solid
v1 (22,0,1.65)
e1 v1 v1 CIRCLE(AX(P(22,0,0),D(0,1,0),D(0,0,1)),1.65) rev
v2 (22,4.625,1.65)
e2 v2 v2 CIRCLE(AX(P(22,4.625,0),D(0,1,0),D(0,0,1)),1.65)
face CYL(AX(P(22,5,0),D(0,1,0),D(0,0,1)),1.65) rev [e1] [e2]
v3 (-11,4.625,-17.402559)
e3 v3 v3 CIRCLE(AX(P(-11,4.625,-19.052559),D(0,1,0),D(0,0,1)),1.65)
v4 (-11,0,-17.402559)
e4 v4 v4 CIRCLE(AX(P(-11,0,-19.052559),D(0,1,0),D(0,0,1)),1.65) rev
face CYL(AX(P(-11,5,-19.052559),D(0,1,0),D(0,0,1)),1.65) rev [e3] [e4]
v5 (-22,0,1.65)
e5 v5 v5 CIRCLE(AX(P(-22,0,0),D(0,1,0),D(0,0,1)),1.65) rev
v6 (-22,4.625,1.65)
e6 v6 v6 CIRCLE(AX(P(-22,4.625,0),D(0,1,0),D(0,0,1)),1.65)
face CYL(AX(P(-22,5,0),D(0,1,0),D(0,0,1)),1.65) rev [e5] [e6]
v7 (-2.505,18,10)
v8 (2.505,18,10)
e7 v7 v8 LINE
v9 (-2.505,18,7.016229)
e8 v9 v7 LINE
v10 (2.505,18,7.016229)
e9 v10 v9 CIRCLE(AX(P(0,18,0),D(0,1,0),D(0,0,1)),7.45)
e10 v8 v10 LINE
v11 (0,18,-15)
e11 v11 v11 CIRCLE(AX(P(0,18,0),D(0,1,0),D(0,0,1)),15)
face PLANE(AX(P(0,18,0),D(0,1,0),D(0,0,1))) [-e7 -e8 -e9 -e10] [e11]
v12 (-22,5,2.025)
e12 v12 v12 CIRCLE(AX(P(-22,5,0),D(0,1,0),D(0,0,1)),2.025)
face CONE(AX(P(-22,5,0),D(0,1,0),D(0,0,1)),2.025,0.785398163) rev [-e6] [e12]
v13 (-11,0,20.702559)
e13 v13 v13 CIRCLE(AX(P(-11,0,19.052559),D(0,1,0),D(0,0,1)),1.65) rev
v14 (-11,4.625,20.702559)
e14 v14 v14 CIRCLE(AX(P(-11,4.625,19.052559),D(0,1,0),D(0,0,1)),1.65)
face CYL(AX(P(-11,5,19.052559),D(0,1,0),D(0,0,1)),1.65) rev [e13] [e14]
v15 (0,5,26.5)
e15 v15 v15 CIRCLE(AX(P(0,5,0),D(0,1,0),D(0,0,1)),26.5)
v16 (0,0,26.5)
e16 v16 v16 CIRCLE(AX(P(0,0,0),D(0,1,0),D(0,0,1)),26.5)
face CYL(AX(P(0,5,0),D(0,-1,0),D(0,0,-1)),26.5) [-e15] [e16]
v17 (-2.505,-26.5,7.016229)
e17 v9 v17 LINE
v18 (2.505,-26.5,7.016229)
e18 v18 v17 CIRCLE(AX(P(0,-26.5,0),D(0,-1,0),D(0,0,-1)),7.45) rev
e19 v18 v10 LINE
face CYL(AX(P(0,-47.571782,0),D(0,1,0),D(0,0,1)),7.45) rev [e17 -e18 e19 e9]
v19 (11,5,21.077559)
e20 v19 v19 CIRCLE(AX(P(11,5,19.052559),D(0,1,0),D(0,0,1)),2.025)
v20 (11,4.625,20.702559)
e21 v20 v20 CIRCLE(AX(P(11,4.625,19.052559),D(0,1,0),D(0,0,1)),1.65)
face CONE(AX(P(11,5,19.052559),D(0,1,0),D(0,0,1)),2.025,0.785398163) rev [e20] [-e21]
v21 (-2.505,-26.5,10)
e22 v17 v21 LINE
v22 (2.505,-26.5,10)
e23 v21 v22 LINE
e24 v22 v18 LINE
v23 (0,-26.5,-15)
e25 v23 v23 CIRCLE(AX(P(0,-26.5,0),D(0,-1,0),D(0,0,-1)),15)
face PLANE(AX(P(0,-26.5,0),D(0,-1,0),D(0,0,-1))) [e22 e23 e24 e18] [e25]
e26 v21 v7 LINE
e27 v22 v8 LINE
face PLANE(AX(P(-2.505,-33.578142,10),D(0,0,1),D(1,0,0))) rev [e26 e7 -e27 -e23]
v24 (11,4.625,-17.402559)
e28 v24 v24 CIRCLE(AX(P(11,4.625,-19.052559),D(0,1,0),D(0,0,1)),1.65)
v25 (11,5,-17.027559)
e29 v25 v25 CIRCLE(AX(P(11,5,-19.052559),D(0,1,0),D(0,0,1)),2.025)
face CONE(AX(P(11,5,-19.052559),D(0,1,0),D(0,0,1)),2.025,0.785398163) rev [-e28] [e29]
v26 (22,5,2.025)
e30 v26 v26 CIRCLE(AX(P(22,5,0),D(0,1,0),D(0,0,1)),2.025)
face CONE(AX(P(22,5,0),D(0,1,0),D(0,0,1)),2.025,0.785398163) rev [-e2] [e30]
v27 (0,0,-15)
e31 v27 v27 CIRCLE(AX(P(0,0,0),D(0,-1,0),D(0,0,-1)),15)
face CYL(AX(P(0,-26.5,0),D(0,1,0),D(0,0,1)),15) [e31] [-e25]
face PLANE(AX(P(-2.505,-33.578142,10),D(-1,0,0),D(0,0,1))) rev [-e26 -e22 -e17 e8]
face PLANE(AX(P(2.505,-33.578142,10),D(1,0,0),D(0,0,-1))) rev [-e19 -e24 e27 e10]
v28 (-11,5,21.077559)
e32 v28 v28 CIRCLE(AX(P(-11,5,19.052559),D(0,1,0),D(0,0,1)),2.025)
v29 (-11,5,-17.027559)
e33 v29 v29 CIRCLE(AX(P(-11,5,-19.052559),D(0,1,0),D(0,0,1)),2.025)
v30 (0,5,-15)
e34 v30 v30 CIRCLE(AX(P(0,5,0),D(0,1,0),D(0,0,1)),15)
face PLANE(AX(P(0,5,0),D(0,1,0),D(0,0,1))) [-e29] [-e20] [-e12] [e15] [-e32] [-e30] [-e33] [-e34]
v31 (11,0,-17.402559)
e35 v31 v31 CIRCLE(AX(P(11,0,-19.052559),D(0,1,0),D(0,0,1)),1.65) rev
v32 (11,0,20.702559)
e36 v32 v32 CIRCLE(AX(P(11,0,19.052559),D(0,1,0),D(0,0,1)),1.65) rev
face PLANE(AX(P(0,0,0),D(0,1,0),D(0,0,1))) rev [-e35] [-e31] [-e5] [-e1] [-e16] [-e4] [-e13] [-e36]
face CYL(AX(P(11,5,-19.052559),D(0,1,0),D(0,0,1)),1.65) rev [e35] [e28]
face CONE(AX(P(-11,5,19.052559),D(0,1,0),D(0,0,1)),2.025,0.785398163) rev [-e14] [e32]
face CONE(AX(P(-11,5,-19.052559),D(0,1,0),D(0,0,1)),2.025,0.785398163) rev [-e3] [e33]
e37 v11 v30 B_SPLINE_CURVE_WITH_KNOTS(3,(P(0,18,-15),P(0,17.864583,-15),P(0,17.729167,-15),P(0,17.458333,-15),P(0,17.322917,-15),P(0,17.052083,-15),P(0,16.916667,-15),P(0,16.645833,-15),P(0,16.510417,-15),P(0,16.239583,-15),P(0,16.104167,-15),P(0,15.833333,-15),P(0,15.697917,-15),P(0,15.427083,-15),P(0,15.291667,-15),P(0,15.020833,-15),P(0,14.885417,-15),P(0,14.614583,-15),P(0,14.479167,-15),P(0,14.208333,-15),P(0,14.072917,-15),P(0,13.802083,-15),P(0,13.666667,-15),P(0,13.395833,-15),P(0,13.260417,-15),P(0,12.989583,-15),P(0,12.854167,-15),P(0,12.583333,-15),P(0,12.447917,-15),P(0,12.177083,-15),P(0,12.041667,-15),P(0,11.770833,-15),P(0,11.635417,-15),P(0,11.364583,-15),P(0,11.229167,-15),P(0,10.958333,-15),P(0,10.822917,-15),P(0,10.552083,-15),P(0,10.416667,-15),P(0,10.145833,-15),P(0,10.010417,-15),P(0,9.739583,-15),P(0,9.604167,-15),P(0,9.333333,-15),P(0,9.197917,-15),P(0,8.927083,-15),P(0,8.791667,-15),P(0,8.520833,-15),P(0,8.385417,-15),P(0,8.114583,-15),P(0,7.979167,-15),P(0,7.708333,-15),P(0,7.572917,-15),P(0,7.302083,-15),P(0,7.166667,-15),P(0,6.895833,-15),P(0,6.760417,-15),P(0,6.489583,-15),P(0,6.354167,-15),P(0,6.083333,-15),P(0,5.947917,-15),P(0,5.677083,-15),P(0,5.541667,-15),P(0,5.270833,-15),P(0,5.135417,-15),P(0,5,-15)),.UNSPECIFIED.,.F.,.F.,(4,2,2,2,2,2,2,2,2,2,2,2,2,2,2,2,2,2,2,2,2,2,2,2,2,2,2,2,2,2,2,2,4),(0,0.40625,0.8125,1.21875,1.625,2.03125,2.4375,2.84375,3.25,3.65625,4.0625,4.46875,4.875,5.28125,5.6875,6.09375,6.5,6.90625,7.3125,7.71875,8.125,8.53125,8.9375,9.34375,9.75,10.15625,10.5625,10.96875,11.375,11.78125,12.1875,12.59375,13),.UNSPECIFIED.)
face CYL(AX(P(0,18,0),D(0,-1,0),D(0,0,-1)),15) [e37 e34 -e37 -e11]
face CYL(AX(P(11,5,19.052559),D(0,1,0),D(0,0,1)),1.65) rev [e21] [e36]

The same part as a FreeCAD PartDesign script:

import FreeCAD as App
import Part
import Sketcher
from FreeCAD import Vector


def add_polygon(sketch, points):
    """Adds a closed chain of lines whose ends are joined by coincident constraints."""
    first, n = sketch.GeometryCount, len(points)
    for a, b in zip(points, points[1:] + points[:1]):
        sketch.addGeometry(Part.LineSegment(App.Vector(*a, 0), App.Vector(*b, 0)), False)
    for i in range(n):
        sketch.addConstraint(Sketcher.Constraint("Coincident", first + i, 2, first + (i + 1) % n, 1))

doc = App.newDocument("Part")
body = doc.addObject("PartDesign::Body", "Body")

# Sketch on XZ plane
sketch1 = body.newObject("Sketcher::SketchObject", "Sketch")
sketch1.AttachmentSupport = (doc.getObject("XZ_Plane"), [""])
sketch1.MapMode = "FlatFace"
sketch1.addGeometry(Part.Circle(Vector(0, 0, 0), Vector(0, 0, 1), 26), False)
sketch1.addConstraint([
    Sketcher.Constraint("Coincident", 0, 3, -1, 1),
    Sketcher.Constraint("Diameter", 0, 53.0),
])
pad1 = body.newObject("PartDesign::Pad", "Pad")
pad1.Profile = sketch1
pad1.Length = 5
pad1.Reversed = True

# Sketch on XZ plane
sketch2 = body.newObject("Sketcher::SketchObject", "Sketch001")
sketch2.AttachmentSupport = (doc.getObject("XZ_Plane"), [""])
sketch2.MapMode = "FlatFace"
sketch2.AttachmentOffset = App.Placement(Vector(0, 0, -5), App.Rotation())
sketch2.addGeometry(Part.Circle(Vector(0, 0, 0), Vector(0, 0, 1), 15), False)
sketch2.addConstraint([
    Sketcher.Constraint("Coincident", 0, 3, -1, 1),
    Sketcher.Constraint("Diameter", 0, 30.0),
])
pad2 = body.newObject("PartDesign::Pad", "Pad001")
pad2.Profile = sketch2
pad2.Length = 13
pad2.Reversed = True

# Sketch on XZ plane
sketch3 = body.newObject("Sketcher::SketchObject", "Sketch002")
sketch3.AttachmentSupport = (doc.getObject("XZ_Plane"), [""])
sketch3.MapMode = "FlatFace"
sketch3.AttachmentOffset = App.Placement(Vector(0, 0, 26.5), App.Rotation())
sketch3.addGeometry(Part.Circle(Vector(0, 0, 0), Vector(0, 0, 1), 15), False)
sketch3.addConstraint([
    Sketcher.Constraint("Coincident", 0, 3, -1, 1),
    Sketcher.Constraint("Diameter", 0, 30.0),
])
pad3 = body.newObject("PartDesign::Pad", "Pad002")
pad3.Profile = sketch3
pad3.Length = 26.5
pad3.Reversed = True

# Sketch on XZ plane
sketch4 = body.newObject("Sketcher::SketchObject", "Sketch003")
sketch4.AttachmentSupport = (doc.getObject("XZ_Plane"), [""])
sketch4.MapMode = "FlatFace"
sketch4.AttachmentOffset = App.Placement(Vector(0, 0, -5), App.Rotation())
sketch4.addGeometry(Part.Circle(Vector(22, 0, 0), Vector(0, 0, 1), 1.6), False)
sketch4.addConstraint([
    Sketcher.Constraint("PointOnObject", 0, 3, -1),
    Sketcher.Constraint("Diameter", 0, 3.3),
    Sketcher.Constraint("DistanceX", -1, 1, 0, 3, 22.0),
])
doc.recompute()
hole = body.newObject("PartDesign::Hole", "Hole")
hole.Profile = sketch4
hole.ThreadType = "None"
hole.Diameter = 3.3
hole.DepthType = "ThroughAll"
hole.HoleCutType = "Countersink"
hole.HoleCutDiameter = 4.05
hole.HoleCutCountersinkAngle = 90
hole.Reversed = True
doc.recompute()

polarpattern = body.newObject("PartDesign::PolarPattern", "PolarPattern")
polarpattern.Originals = [hole]
polarpattern.Axis = (doc.getObject("Y_Axis"), [""])
polarpattern.Angle = 360
polarpattern.Occurrences = 6
body.Tip = polarpattern

# Sketch on XZ plane
sketch5 = body.newObject("Sketcher::SketchObject", "Sketch004")
sketch5.AttachmentSupport = (doc.getObject("XZ_Plane"), [""])
sketch5.MapMode = "FlatFace"
sketch5.AttachmentOffset = App.Placement(Vector(0, 0, -18), App.Rotation())
sketch5.addGeometry(Part.Circle(Vector(0, 0, 0), Vector(0, 0, 1), 7), False)
sketch5.addConstraint([
    Sketcher.Constraint("Coincident", 0, 3, -1, 1),
    Sketcher.Constraint("Diameter", 0, 14.9),
])
pocket1 = body.newObject("PartDesign::Pocket", "Pocket")
pocket1.Profile = sketch5
pocket1.Length = 44.5
pocket1.Reversed = True

# Sketch on XZ plane
sketch6 = body.newObject("Sketcher::SketchObject", "Sketch005")
sketch6.AttachmentSupport = (doc.getObject("XZ_Plane"), [""])
sketch6.MapMode = "FlatFace"
sketch6.AttachmentOffset = App.Placement(Vector(0, 0, -18), App.Rotation())
add_polygon(sketch6, [(-3, 5), (-3, 10), (3, 10), (3, 5)])  # lines 0-3
sketch6.addConstraint([
    Sketcher.Constraint("Vertical", 0),
    Sketcher.Constraint("Horizontal", 1),
    Sketcher.Constraint("Vertical", 2),
    Sketcher.Constraint("Horizontal", 3),
    Sketcher.Constraint("DistanceY", 0, 1, 0, 2, 5.0),
    Sketcher.Constraint("DistanceY", -1, 1, 0, 2, 10.0),
    Sketcher.Constraint("DistanceX", 1, 1, 1, 2, 5.01),
    Sketcher.Constraint("DistanceX", 0, 2, -1, 1, 2.505),
])
pocket2 = body.newObject("PartDesign::Pocket", "Pocket001")
pocket2.Profile = sketch6
pocket2.Length = 44.5
pocket2.Reversed = True

doc.recompute()
